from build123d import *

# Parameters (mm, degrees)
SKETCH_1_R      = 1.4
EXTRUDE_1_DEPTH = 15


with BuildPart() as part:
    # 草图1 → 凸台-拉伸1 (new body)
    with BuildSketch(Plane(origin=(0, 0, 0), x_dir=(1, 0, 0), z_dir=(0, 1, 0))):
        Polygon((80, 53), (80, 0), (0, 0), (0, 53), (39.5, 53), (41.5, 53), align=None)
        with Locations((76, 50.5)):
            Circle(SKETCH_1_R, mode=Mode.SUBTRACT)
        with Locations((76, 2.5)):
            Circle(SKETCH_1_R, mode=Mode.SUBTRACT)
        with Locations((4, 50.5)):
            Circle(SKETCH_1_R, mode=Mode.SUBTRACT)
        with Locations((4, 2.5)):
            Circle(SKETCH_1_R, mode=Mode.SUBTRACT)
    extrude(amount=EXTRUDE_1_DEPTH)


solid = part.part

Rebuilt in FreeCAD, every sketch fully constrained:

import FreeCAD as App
import Part
import Sketcher
Q = App.Units.Quantity


def add_polygon(sketch, points):
    """Adds a closed chain of lines whose ends are joined by coincident constraints."""
    first, n = sketch.GeometryCount, len(points)
    for a, b in zip(points, points[1:] + points[:1]):
        sketch.addGeometry(Part.LineSegment(App.Vector(*a, 0), App.Vector(*b, 0)), False)
    for i in range(n):
        sketch.addConstraint(Sketcher.Constraint("Coincident", first + i, 2, first + (i + 1) % n, 1))

doc = App.newDocument("Part")
body = doc.addObject("PartDesign::Body", "Body")

sketch1 = doc.addObject("Sketcher::SketchObject", "Sketch")
body.addObject(sketch1)
sketch1.AttachmentSupport = (doc.XZ_Plane, [""])
sketch1.MapMode = "FlatFace"
add_polygon(sketch1, [(80, 0), (80, -53), (0, -53), (0, 0)])
sketch1.addGeometry(Part.Circle(App.Vector(76, -2.5, 0), App.Vector(0, 0, 1), 1.4), False)
sketch1.addGeometry(Part.Circle(App.Vector(4, -2.5, 0), App.Vector(0, 0, 1), 1.4), False)
sketch1.addGeometry(Part.Circle(App.Vector(76, -50.5, 0), App.Vector(0, 0, 1), 1.4), False)
sketch1.addGeometry(Part.Circle(App.Vector(4, -50.5, 0), App.Vector(0, 0, 1), 1.4), False)
sketch1.addConstraint([
    Sketcher.Constraint("Vertical", 0),
    Sketcher.Constraint("Horizontal", 1),
    Sketcher.Constraint("Vertical", 2),
    Sketcher.Constraint("Horizontal", 3),
    Sketcher.Constraint("Coincident", 2, 2, -1, 1),
    Sketcher.Constraint("Equal", 4, 5),
    Sketcher.Constraint("Equal", 5, 6),
    Sketcher.Constraint("Equal", 6, 7),
    Sketcher.Constraint("Horizontal", 4, 3, 5, 3),
    Sketcher.Constraint("Horizontal", 6, 3, 7, 3),
    Sketcher.Constraint("Vertical", 4, 3, 6, 3),
    Sketcher.Constraint("Vertical", 5, 3, 7, 3),
    Sketcher.Constraint("Diameter", 4, Q("2.8 mm")),
    Sketcher.Constraint("DistanceX", 1, 2, 1, 1, Q("80 mm")),
    Sketcher.Constraint("DistanceY", 0, 2, 0, 1, Q("53 mm")),
    Sketcher.Constraint("DistanceX", -1, 1, 4, 3, Q("76 mm")),
    Sketcher.Constraint("DistanceX", -1, 1, 5, 3, Q("4 mm")),
    Sketcher.Constraint("DistanceY", 6, 3, 4, 3, Q("48 mm")),
    Sketcher.Constraint("DistanceY", 4, 3, -1, 1, Q("2.5 mm")),
])
pad1 = doc.addObject("PartDesign::Pad", "Pad")
body.addObject(pad1)
pad1.Profile = sketch1
pad1.Length = 15
pad1.Reversed = True

doc.recompute()
